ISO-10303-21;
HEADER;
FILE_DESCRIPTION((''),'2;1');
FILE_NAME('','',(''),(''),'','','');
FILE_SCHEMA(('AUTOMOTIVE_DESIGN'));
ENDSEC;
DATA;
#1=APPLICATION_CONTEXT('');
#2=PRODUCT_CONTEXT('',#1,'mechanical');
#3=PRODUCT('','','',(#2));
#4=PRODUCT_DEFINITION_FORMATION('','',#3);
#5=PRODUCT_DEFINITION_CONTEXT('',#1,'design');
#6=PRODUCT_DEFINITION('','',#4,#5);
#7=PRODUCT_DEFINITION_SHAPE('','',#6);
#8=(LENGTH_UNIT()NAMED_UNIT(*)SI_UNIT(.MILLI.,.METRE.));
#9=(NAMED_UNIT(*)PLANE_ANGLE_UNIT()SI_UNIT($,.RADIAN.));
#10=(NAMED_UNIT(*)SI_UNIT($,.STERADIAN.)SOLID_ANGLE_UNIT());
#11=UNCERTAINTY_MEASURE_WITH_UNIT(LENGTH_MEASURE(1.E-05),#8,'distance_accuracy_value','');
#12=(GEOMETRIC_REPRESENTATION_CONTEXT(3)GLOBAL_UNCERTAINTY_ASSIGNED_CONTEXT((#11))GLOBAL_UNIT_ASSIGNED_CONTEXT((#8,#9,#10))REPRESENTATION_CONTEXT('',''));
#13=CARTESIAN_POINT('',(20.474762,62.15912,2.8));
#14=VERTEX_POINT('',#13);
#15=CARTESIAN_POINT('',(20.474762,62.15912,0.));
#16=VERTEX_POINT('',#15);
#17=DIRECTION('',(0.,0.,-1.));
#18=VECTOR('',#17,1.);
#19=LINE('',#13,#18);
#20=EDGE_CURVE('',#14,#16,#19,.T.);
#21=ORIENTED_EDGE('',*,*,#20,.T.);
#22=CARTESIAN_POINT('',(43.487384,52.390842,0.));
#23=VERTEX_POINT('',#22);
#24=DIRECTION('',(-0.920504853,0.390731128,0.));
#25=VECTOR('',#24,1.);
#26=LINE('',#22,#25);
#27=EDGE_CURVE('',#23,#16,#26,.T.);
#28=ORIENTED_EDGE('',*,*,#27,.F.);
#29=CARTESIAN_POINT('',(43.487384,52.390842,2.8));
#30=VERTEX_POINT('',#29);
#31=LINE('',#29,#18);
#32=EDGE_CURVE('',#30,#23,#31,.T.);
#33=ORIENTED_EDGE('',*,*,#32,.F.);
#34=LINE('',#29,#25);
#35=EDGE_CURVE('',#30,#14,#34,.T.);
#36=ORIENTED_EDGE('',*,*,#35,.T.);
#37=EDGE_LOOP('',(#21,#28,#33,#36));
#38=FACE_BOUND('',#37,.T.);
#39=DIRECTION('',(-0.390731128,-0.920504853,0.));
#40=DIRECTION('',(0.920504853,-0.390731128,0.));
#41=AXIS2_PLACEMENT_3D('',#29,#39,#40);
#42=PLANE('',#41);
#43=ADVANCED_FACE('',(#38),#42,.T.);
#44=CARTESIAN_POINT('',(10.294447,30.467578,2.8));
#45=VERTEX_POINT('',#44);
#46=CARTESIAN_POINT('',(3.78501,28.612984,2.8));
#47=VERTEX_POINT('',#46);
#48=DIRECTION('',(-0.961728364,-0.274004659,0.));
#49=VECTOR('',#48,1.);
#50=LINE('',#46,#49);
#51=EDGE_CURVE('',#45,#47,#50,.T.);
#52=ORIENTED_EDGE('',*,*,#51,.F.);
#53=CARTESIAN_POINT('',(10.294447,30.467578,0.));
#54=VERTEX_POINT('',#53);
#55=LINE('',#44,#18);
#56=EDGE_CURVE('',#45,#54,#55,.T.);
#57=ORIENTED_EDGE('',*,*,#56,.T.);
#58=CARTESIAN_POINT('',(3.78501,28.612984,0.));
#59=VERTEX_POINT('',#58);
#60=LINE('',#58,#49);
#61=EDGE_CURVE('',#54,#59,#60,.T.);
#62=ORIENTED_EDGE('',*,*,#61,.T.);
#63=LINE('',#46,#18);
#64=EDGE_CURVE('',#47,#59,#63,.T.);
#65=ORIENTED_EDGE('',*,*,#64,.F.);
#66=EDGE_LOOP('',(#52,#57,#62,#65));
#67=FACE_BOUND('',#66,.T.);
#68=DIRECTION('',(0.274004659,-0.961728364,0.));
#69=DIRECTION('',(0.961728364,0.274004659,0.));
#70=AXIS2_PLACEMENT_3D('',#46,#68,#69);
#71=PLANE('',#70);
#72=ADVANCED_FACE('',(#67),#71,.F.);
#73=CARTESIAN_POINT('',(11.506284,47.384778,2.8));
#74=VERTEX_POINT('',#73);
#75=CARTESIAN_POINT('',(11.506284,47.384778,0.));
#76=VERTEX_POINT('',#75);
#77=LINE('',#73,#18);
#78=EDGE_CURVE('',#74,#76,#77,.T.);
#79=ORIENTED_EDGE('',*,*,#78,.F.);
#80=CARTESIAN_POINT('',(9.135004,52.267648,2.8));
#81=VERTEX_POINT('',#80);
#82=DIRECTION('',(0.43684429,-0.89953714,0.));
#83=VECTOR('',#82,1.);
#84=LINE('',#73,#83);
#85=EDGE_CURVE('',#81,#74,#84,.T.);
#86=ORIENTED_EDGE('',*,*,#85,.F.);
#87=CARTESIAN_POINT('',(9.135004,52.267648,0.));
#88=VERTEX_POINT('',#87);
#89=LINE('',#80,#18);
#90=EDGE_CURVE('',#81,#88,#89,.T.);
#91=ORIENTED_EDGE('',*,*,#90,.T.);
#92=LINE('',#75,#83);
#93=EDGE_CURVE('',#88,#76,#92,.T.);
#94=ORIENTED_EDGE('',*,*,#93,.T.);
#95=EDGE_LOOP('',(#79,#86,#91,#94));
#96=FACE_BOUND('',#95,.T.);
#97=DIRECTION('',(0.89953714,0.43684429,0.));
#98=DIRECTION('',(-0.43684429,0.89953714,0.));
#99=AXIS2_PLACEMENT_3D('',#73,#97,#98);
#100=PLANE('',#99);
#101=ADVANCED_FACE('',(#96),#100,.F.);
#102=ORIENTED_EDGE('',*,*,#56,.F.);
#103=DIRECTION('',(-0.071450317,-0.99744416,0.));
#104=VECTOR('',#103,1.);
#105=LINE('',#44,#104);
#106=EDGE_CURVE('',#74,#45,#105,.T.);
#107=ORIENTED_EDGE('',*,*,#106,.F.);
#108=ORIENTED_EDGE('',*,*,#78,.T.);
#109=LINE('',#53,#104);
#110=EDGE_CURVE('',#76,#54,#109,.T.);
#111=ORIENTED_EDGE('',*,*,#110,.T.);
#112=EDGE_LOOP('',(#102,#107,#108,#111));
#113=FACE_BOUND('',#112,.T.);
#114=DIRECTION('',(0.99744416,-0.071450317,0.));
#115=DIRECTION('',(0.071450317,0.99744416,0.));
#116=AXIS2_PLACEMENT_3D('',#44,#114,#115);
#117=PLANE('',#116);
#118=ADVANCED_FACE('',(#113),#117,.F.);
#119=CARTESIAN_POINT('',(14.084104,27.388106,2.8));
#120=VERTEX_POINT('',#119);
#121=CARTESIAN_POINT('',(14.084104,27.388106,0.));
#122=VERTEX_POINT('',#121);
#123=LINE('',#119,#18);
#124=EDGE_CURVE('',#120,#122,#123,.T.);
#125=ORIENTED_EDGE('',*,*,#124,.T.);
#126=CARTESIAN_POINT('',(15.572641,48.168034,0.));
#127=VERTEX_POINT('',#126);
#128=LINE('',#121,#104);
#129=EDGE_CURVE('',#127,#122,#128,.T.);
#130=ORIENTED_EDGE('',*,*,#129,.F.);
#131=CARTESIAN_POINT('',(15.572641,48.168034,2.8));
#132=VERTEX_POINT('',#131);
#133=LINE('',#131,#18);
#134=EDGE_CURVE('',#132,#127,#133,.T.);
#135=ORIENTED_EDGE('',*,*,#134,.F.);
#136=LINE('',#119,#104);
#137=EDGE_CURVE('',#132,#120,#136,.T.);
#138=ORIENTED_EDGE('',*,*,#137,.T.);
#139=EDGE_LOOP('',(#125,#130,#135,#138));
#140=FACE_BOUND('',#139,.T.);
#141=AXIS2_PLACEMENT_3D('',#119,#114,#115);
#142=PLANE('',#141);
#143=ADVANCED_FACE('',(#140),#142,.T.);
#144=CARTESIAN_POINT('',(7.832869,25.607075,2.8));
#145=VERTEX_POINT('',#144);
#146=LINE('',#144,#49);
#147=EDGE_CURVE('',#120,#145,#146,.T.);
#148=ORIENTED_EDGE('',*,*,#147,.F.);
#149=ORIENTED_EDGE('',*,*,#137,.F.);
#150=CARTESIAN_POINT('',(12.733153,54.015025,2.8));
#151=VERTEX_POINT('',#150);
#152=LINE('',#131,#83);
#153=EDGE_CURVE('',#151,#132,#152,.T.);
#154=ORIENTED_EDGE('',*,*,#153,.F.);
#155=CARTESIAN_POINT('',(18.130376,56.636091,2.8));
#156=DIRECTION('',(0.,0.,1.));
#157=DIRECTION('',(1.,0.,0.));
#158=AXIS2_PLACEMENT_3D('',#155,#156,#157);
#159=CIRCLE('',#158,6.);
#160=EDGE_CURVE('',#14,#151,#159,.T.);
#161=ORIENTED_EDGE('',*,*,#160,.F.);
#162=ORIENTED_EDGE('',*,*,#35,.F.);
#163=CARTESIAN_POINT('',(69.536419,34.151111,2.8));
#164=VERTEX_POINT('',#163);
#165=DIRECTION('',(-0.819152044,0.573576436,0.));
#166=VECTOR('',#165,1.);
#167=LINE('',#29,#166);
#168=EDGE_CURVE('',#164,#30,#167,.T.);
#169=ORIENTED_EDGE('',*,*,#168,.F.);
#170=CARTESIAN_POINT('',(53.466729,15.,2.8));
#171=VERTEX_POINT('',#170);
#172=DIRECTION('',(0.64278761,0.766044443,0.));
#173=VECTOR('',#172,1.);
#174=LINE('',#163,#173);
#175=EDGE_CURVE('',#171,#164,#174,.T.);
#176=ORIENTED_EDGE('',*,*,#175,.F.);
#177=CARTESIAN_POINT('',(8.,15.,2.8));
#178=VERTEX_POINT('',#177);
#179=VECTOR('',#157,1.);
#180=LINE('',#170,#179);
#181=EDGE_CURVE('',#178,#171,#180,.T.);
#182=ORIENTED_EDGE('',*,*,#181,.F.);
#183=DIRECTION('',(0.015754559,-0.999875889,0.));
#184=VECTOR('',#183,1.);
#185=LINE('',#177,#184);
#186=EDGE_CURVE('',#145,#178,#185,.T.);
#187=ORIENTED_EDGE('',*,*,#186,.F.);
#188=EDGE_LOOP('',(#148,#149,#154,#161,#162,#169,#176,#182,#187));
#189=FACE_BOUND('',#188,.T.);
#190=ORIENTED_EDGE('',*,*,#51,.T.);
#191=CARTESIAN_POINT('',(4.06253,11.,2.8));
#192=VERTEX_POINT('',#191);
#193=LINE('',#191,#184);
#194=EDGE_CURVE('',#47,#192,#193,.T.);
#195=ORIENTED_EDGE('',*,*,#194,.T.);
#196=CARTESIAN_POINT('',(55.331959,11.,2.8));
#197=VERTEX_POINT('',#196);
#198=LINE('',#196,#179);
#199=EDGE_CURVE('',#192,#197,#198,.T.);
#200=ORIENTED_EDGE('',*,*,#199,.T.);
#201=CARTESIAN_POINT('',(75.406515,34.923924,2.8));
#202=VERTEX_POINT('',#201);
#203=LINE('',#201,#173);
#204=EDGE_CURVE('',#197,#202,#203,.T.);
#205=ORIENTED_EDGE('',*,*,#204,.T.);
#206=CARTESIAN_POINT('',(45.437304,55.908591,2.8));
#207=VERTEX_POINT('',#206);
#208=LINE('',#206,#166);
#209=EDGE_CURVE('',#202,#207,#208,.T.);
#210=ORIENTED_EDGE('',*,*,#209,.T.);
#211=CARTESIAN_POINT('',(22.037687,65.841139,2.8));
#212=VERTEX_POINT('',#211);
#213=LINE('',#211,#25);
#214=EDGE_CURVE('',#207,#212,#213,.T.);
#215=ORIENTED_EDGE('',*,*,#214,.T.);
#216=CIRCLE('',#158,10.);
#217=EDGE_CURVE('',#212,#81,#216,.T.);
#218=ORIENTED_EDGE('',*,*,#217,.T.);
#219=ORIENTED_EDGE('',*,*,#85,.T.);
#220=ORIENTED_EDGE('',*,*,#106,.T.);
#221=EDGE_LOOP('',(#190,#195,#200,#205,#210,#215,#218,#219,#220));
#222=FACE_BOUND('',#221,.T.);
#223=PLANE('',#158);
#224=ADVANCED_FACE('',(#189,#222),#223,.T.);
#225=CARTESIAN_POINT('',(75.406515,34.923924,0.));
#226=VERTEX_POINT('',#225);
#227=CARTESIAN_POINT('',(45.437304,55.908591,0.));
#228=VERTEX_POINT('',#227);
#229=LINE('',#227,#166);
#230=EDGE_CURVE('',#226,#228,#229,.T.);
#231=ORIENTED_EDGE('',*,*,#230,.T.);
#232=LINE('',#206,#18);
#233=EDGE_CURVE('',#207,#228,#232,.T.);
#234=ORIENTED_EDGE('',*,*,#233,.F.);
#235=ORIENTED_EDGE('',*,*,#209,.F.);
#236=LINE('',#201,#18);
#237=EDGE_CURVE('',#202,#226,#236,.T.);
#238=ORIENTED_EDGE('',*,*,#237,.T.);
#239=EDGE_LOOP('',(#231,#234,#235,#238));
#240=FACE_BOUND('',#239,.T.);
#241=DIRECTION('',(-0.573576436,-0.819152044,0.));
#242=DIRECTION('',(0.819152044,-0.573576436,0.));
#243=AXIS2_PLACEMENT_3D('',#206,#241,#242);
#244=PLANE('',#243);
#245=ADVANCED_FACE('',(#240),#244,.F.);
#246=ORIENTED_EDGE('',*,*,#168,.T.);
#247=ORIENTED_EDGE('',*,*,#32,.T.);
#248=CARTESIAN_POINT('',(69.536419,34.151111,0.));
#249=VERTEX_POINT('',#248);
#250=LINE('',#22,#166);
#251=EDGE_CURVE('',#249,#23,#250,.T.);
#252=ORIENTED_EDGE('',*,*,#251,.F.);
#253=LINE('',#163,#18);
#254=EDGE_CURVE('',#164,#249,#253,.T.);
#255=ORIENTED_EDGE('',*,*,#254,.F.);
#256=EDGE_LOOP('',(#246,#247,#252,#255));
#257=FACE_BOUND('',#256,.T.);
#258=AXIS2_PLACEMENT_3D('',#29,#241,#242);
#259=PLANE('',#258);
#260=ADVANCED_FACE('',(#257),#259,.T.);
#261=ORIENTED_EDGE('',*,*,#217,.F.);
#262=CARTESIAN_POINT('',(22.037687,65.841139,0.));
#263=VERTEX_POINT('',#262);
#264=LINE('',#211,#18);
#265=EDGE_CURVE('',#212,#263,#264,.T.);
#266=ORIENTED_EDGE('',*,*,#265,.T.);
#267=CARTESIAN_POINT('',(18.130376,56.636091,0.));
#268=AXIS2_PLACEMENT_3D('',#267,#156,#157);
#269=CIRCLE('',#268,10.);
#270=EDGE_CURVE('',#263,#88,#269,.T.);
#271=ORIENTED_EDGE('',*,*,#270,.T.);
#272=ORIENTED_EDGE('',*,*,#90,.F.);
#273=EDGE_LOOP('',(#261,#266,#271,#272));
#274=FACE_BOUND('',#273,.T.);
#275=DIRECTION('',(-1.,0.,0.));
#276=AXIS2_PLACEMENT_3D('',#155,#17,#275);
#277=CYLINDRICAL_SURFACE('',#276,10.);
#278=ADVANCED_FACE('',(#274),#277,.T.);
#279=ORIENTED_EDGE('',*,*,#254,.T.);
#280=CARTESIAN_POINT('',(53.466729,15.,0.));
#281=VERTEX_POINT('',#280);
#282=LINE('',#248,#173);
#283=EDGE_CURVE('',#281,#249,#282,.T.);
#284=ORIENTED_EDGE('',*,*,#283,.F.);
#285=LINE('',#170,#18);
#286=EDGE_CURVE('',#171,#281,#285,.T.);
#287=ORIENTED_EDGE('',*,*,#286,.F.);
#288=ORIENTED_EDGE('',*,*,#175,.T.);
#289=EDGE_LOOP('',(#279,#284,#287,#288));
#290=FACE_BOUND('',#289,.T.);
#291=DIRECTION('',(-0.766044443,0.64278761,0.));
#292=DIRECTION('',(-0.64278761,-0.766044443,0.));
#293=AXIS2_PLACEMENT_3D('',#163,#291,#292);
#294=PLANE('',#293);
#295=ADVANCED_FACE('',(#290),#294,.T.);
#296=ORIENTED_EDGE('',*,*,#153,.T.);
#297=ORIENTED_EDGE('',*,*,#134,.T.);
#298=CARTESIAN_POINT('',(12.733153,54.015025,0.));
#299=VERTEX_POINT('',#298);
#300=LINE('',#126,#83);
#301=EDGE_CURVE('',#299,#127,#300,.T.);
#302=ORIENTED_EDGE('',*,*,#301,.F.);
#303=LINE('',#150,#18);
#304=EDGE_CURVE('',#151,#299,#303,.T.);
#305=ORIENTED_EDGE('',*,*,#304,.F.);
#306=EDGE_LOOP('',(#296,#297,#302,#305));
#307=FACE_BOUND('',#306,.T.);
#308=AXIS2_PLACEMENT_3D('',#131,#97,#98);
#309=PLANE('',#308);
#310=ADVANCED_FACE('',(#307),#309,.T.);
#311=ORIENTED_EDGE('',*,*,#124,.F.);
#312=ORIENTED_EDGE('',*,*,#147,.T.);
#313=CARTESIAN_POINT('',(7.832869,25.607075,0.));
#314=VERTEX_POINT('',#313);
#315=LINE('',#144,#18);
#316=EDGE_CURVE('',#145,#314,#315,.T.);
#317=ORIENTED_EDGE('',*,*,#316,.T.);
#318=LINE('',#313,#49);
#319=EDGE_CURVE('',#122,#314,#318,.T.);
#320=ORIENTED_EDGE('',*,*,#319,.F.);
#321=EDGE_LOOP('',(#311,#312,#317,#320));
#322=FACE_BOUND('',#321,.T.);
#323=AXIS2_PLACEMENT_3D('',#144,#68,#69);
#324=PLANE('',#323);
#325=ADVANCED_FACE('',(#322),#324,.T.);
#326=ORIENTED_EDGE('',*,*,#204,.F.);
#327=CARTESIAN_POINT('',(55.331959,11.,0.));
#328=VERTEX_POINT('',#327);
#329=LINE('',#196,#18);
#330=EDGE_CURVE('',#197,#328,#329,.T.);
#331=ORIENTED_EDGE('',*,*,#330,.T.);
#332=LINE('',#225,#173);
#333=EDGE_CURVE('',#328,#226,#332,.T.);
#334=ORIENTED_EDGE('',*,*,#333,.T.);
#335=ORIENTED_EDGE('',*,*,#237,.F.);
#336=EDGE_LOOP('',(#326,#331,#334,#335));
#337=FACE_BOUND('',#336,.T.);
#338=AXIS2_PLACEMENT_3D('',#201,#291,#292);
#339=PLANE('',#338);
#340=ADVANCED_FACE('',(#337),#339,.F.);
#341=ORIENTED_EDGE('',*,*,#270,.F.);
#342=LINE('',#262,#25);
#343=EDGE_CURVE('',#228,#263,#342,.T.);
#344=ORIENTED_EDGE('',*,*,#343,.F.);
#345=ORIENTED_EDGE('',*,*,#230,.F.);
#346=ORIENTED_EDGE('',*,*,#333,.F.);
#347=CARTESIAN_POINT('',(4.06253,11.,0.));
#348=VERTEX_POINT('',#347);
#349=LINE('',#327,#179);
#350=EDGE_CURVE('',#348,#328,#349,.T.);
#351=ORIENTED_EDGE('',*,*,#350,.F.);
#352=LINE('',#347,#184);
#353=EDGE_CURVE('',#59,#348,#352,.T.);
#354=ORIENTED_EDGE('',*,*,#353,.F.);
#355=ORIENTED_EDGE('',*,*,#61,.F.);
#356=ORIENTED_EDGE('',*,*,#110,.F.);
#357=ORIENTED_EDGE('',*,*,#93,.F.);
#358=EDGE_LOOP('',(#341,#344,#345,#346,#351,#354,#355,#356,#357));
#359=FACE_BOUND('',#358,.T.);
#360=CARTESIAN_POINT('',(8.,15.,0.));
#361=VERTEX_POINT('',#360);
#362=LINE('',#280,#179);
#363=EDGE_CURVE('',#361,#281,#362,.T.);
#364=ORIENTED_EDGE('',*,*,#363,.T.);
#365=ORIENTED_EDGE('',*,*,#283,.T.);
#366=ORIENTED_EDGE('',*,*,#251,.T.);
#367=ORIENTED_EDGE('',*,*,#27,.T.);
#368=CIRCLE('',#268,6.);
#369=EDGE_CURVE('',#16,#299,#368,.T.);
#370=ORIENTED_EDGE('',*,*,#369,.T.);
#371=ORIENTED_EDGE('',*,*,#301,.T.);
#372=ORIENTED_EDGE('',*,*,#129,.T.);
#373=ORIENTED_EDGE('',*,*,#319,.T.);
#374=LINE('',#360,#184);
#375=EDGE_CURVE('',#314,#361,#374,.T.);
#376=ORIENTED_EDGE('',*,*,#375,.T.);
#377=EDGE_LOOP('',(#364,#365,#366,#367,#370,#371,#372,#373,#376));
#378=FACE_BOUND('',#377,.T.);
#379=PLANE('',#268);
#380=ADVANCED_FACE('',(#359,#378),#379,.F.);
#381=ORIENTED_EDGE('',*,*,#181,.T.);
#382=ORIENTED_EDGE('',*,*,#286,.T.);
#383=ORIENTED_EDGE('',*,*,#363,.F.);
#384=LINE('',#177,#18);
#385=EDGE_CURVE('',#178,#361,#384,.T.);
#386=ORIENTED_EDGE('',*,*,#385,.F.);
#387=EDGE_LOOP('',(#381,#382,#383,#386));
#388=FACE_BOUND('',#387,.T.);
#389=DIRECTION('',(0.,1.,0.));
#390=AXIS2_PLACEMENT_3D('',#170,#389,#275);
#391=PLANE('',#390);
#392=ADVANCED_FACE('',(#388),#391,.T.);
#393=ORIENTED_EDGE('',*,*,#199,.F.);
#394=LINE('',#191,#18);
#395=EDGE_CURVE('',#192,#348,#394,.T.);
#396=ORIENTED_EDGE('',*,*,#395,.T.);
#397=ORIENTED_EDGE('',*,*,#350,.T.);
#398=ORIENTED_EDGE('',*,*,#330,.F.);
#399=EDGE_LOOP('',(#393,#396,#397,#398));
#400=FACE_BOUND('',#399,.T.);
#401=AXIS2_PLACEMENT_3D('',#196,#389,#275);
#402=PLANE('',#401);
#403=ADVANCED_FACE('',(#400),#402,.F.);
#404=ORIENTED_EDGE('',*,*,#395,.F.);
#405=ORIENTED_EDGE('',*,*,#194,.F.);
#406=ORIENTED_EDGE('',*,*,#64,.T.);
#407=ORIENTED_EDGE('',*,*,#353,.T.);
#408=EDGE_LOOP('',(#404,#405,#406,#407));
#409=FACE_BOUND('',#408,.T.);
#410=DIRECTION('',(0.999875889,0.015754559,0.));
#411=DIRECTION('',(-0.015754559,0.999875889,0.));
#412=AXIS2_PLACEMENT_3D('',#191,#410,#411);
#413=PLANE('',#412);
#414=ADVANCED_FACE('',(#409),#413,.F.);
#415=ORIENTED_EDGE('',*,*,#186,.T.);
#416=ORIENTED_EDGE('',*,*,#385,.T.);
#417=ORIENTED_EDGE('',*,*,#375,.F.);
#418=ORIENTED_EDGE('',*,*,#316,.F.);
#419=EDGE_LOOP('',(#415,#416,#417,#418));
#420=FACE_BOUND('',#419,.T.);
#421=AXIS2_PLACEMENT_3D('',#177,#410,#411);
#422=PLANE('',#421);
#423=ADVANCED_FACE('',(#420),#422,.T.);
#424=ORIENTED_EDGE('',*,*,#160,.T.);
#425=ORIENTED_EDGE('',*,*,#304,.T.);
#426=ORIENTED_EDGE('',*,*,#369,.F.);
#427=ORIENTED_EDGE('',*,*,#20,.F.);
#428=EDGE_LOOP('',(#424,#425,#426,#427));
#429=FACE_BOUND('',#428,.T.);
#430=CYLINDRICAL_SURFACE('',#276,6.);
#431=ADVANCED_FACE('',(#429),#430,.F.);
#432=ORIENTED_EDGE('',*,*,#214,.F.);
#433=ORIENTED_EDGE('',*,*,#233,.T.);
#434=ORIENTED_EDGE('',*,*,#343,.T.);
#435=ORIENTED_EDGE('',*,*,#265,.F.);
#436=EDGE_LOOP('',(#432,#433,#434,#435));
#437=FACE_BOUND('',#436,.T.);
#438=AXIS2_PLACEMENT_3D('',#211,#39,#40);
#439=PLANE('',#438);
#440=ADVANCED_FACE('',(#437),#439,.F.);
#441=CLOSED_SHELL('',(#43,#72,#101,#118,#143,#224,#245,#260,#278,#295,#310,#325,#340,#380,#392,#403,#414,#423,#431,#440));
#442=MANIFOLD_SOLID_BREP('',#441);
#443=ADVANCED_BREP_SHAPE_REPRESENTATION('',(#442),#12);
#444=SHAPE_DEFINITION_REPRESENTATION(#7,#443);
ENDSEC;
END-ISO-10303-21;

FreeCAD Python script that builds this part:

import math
import FreeCAD as App
import Part
import Sketcher
Q = App.Units.Quantity

doc = App.newDocument("Part")
params = doc.addObject("Spreadsheet::Sheet", "Params")
for row, (alias, value) in enumerate([
    ("sketch1_radius", "10 mm"),
    ("sketch1_radius2", "6 mm"),
    ("sketch1_length", "25 mm"),
    ("sketch1_length2", "31.8 mm"),
    ("sketch1_length3", "6.5 mm"),
    ("pad1_length", "2.8 mm"),
], start=1):
    params.set(f"A{row}", alias)
    params.set(f"B{row}", "=" + value)
    params.setAlias(f"B{row}", alias)

body = doc.addObject("PartDesign::Body", "Body")

# Sketch on XY plane
sketch1 = body.newObject("Sketcher::SketchObject", "Sketch")
sketch1.AttachmentSupport = (doc.getObject("XY_Plane"), [""])
sketch1.MapMode = "FlatFace"
sketch1.addGeometry([
    Part.LineSegment(App.Vector(45, 56, 0), App.Vector(22, 66, 0)),  # 0
    Part.ArcOfCircle(Part.Circle(App.Vector(18, 57, 0), App.Vector(0, 0, 1), 10), math.radians(67), math.radians(206)),  # 1
    Part.LineSegment(App.Vector(9, 52, 0), App.Vector(12, 47, 0)),  # 2
    Part.LineSegment(App.Vector(12, 47, 0), App.Vector(10, 30, 0)),  # 3
    Part.LineSegment(App.Vector(10, 30, 0), App.Vector(4, 29, 0)),  # 4
    Part.LineSegment(App.Vector(4, 29, 0), App.Vector(4, 11, 0)),  # 5
    Part.LineSegment(App.Vector(4, 11, 0), App.Vector(55, 11, 0)),  # 6
    Part.LineSegment(App.Vector(55, 11, 0), App.Vector(75, 35, 0)),  # 7
    Part.LineSegment(App.Vector(75, 35, 0), App.Vector(45, 56, 0)),  # 8
    Part.LineSegment(App.Vector(43, 52, 0), App.Vector(70, 34, 0)),  # 9
    Part.LineSegment(App.Vector(70, 34, 0), App.Vector(53, 15, 0)),  # 10
    Part.LineSegment(App.Vector(53, 15, 0), App.Vector(8, 15, 0)),  # 11
    Part.LineSegment(App.Vector(8, 15, 0), App.Vector(8, 26, 0)),  # 12
    Part.LineSegment(App.Vector(8, 26, 0), App.Vector(14, 27, 0)),  # 13
    Part.LineSegment(App.Vector(14, 27, 0), App.Vector(16, 48, 0)),  # 14
    Part.LineSegment(App.Vector(16, 48, 0), App.Vector(13, 54, 0)),  # 15
    Part.ArcOfCircle(Part.Circle(App.Vector(18, 57, 0), App.Vector(0, 0, 1), 6), math.radians(67), math.radians(206)),  # 16
    Part.LineSegment(App.Vector(20, 62, 0), App.Vector(43, 52, 0)),  # 17
], False)
sketch1.addConstraint([
    Sketcher.Constraint("Tangent", 0, 2, 1, 1),
    Sketcher.Constraint("Tangent", 1, 2, 2, 1),
    Sketcher.Constraint("Coincident", 2, 2, 3, 1),
    Sketcher.Constraint("Coincident", 3, 2, 4, 1),
    Sketcher.Constraint("Coincident", 4, 2, 5, 1),
    Sketcher.Constraint("Coincident", 5, 2, 6, 1),
    Sketcher.Constraint("Coincident", 6, 2, 7, 1),
    Sketcher.Constraint("Coincident", 7, 2, 8, 1),
    Sketcher.Constraint("Coincident", 8, 2, 0, 1),
    Sketcher.Constraint("Coincident", 9, 2, 10, 1),
    Sketcher.Constraint("Coincident", 10, 2, 11, 1),
    Sketcher.Constraint("Coincident", 11, 2, 12, 1),
    Sketcher.Constraint("Coincident", 12, 2, 13, 1),
    Sketcher.Constraint("Coincident", 13, 2, 14, 1),
    Sketcher.Constraint("Coincident", 14, 2, 15, 1),
    Sketcher.Constraint("Tangent", 15, 2, 16, 2),
    Sketcher.Constraint("Tangent", 16, 1, 17, 1),
    Sketcher.Constraint("Coincident", 17, 2, 9, 1),
    Sketcher.Constraint("Horizontal", 6),
    Sketcher.Constraint("Horizontal", 11),
    Sketcher.Constraint("Coincident", 16, 3, 1, 3),
    Sketcher.Constraint("Parallel", 8, 9),
    Sketcher.Constraint("Parallel", 7, 10),
    Sketcher.Constraint("Parallel", 5, 12),
    Sketcher.Constraint("Parallel", 4, 13),
    Sketcher.Constraint("Parallel", 3, 14),
    Sketcher.Constraint("Parallel", 2, 15),
    Sketcher.Constraint("Parallel", 0, 17),
    Sketcher.Constraint("Equal", 13, 15),
    Sketcher.Constraint("Equal", 10, 17),
    Sketcher.Constraint("Radius", 1, Q("10 mm")),
    Sketcher.Constraint("Radius", 16, Q("6 mm")),
    Sketcher.Constraint("Angle", 0, Q("157 deg")),
    Sketcher.Constraint("Angle", 7, Q("50 deg")),
    Sketcher.Constraint("Angle", 8, Q("145 deg")),
    Sketcher.Constraint("Distance", 10, Q("25 mm")),
    Sketcher.Constraint("DistanceY", -1, 1, 5, 2, Q("11 mm")),
    Sketcher.Constraint("DistanceY", -1, 1, 10, 2, Q("15 mm")),
    Sketcher.Constraint("DistanceX", -1, 1, 11, 2, Q("8 mm")),
    Sketcher.Constraint("Distance", 9, Q("31.8 mm")),
    Sketcher.Constraint("Distance", 13, Q("6.5 mm")),
    Sketcher.Constraint("DistanceX", 6, 1, 6, 2, Q("51.26943 mm")),
    Sketcher.Constraint("DistanceX", 11, 2, 11, 1, Q("45.466729 mm")),
    Sketcher.Constraint("DistanceY", 3, 2, 2, 2, Q("16.917199 mm")),
    Sketcher.Constraint("DistanceY", 8, 2, 1, 3, Q("0.7275 mm")),
    Sketcher.Constraint("DistanceX", 1, 2, 8, 2, Q("36.3023 mm")),
    Sketcher.Constraint("Distance", 5, Q("17.61517 mm")),
    Sketcher.Constraint("Distance", 8, Q("36.585651 mm")),
    Sketcher.Constraint("Distance", 12, Q("10.608392 mm")),
    Sketcher.Constraint("DistanceY", -1, 1, 3, 2, Q("30.467578 mm")),
    Sketcher.Constraint("DistanceX", -1, 1, 4, 2, Q("3.78501 mm")),
])
sketch1.setExpression("Constraints[30]", "Params.sketch1_radius")
sketch1.setExpression("Constraints[31]", "Params.sketch1_radius2")
sketch1.setExpression("Constraints[35]", "Params.sketch1_length")
sketch1.setExpression("Constraints[39]", "Params.sketch1_length2")
sketch1.setExpression("Constraints[40]", "Params.sketch1_length3")
pad1 = body.newObject("PartDesign::Pad", "Pad")
pad1.Profile = sketch1
pad1.setExpression("Length", "Params.pad1_length")

doc.recompute()
